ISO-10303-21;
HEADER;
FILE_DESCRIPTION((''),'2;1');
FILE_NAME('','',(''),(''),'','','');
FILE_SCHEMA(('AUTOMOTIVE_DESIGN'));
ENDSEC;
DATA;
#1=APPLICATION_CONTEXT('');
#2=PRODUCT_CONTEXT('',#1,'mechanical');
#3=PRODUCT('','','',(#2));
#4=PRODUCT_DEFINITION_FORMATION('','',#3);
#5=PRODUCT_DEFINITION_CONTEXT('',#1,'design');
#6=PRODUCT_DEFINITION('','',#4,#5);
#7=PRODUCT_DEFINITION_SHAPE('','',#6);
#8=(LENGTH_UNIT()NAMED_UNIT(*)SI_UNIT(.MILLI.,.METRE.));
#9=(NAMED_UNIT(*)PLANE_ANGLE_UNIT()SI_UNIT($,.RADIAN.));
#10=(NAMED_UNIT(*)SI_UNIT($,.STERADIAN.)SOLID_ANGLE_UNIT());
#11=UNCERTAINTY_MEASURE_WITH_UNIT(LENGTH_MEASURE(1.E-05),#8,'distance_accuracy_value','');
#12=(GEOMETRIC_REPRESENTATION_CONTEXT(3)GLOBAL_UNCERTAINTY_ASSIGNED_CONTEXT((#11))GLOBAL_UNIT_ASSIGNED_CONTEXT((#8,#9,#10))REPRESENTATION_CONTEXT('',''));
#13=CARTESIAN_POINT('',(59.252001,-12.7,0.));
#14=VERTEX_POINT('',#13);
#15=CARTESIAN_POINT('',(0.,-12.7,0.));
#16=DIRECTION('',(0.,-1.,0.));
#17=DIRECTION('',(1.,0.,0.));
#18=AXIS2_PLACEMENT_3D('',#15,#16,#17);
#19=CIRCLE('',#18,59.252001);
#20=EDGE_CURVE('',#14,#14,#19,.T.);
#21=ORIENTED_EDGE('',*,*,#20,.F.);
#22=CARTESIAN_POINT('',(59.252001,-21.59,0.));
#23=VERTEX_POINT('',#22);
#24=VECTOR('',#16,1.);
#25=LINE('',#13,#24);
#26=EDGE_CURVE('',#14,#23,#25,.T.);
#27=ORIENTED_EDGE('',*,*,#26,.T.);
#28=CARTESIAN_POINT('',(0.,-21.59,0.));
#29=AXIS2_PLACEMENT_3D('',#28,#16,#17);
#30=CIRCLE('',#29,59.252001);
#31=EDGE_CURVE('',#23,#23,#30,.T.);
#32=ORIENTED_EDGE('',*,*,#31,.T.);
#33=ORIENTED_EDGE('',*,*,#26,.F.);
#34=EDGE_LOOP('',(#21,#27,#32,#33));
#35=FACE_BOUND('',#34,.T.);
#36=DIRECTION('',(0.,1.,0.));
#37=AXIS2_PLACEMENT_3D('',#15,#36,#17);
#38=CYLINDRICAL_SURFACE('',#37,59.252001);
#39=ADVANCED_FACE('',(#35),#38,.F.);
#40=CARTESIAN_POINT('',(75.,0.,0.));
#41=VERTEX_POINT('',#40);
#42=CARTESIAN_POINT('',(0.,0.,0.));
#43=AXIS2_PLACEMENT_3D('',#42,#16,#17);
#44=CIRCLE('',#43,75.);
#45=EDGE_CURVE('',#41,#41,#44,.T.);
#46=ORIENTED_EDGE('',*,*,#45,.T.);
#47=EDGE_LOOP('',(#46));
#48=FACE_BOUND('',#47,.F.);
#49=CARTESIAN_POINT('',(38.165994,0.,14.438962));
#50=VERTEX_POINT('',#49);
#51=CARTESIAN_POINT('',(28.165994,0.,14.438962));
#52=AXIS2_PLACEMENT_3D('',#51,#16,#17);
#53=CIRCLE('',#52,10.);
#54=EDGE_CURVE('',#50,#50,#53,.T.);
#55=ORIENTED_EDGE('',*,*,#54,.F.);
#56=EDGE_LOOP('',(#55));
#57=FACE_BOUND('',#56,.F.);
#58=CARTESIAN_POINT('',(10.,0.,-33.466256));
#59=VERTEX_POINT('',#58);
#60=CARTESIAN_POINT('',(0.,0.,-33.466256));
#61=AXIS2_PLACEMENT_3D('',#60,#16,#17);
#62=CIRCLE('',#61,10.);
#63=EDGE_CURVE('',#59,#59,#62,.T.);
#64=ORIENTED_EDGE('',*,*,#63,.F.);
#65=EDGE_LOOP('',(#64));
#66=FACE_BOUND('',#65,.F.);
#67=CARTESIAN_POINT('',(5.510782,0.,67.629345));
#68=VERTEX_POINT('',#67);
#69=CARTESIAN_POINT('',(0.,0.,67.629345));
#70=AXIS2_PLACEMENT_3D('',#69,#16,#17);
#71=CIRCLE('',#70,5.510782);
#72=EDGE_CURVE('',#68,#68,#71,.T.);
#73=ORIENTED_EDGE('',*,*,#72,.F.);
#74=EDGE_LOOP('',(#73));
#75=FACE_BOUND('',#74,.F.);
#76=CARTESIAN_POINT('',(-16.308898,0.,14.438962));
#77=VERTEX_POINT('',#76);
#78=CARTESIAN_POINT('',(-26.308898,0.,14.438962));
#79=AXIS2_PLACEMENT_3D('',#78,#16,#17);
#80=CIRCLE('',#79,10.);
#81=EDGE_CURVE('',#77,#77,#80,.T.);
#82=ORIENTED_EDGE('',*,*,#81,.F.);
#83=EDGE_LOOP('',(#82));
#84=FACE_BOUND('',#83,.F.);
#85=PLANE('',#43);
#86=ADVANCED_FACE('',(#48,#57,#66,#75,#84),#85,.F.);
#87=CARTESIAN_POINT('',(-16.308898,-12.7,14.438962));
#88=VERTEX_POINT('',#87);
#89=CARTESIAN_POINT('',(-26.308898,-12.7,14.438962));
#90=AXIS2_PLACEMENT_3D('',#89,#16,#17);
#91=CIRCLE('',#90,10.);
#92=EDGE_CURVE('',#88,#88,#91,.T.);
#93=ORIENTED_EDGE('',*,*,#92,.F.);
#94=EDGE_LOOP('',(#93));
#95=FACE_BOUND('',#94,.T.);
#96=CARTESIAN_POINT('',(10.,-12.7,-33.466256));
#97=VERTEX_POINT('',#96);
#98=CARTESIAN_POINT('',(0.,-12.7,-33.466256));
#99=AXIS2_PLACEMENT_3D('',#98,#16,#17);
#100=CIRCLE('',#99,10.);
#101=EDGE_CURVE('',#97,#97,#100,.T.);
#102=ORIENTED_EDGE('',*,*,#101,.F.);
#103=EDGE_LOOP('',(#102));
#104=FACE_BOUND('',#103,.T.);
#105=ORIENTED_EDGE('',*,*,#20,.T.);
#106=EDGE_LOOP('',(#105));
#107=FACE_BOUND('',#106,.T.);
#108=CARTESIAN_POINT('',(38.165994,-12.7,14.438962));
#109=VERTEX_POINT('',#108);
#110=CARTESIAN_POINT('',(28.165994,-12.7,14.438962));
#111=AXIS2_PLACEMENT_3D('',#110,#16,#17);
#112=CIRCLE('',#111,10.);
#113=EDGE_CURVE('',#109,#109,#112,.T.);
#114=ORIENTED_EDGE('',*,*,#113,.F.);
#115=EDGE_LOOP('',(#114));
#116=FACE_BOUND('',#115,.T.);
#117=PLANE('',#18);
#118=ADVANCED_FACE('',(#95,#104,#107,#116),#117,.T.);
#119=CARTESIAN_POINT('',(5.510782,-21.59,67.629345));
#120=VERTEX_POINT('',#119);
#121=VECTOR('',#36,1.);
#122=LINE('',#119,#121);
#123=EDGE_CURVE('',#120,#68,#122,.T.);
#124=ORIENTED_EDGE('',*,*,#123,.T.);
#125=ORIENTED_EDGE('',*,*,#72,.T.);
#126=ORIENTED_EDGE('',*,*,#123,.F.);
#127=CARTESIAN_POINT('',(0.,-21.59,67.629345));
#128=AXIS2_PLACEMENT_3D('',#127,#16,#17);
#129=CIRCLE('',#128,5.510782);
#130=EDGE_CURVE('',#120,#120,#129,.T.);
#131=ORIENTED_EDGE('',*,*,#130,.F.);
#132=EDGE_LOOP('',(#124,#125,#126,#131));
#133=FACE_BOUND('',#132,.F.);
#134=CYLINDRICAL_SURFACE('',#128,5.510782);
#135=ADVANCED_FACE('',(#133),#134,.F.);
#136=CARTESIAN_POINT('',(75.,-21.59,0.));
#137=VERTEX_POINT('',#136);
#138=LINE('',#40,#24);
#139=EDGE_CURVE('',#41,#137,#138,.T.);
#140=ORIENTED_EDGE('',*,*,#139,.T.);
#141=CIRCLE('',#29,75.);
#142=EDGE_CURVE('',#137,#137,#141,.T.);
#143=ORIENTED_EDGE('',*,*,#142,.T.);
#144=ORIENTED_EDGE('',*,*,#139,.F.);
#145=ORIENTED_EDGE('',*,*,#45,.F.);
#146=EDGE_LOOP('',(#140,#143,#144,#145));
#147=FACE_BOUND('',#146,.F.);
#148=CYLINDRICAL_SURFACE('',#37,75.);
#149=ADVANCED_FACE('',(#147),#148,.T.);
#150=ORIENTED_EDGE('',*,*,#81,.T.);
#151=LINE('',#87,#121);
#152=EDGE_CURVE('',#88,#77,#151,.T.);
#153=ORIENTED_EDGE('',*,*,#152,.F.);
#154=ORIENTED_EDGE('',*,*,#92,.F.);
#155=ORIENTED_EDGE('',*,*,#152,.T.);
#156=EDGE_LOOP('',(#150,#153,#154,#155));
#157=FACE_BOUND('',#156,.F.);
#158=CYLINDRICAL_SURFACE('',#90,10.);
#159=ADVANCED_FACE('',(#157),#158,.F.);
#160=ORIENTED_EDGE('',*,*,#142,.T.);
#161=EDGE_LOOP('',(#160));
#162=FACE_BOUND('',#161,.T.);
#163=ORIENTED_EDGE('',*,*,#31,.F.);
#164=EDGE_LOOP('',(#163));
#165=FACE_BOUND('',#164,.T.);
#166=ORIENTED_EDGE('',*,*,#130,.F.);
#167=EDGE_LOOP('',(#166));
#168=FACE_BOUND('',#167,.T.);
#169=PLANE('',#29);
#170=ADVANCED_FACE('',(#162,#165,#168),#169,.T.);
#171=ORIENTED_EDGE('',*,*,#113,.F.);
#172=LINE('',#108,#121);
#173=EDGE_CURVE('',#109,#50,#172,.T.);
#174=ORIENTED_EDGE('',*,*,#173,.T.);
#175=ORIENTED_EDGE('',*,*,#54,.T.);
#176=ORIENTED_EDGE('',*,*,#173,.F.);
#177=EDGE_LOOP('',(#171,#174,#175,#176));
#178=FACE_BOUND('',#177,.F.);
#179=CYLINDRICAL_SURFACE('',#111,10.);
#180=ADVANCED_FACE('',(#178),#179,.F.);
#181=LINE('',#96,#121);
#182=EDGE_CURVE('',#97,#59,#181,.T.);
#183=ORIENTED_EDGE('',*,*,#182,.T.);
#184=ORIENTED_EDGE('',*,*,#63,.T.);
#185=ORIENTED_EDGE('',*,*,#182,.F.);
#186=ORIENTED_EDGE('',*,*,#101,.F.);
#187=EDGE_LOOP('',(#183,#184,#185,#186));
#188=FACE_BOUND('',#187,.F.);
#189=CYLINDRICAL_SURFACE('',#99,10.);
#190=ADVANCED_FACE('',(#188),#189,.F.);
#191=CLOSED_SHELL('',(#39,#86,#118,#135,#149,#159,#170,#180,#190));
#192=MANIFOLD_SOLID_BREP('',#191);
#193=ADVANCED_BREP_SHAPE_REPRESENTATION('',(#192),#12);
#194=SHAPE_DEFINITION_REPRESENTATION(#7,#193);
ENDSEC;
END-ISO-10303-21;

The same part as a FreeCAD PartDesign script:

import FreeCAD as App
import Part
import Sketcher
from FreeCAD import Vector
Q = App.Units.Quantity

doc = App.newDocument("Part")
body = doc.addObject("PartDesign::Body", "Body")

# Sketch on XZ plane
sketch1 = body.newObject("Sketcher::SketchObject", "Sketch")
sketch1.AttachmentSupport = (doc.getObject("XZ_Plane"), [""])
sketch1.MapMode = "FlatFace"
sketch1.addGeometry(Part.Circle(Vector(0, 0, 0), Vector(0, 0, 1), 75), False)
sketch1.addConstraint(Sketcher.Constraint("Coincident", 0, 3, -1, 1))
sketch1.addConstraint(Sketcher.Constraint("Diameter", 0, 150.0))
pad1 = body.newObject("PartDesign::Pad", "Pad")
pad1.Profile = sketch1
pad1.Length = Q("0.5 in")

# Sketch on XZ plane
sketch2 = body.newObject("Sketcher::SketchObject", "Sketch001")
sketch2.AttachmentSupport = (doc.getObject("XZ_Plane"), [""])
sketch2.MapMode = "FlatFace"
sketch2.AttachmentOffset = App.Placement(Vector(0, 0, 0.5 * 25.4), App.Rotation())
sketch2.addGeometry(Part.Circle(Vector(0, 0, 0), Vector(0, 0, 1), 75), False)
sketch2.addGeometry(Part.Circle(Vector(0, 0, 0), Vector(0, 0, 1), 59.252001), False)
sketch2.addConstraint(Sketcher.Constraint("Coincident", 0, 3, -1, 1))
sketch2.addConstraint(Sketcher.Constraint("Coincident", 1, 3, -1, 1))
sketch2.addConstraint(Sketcher.Constraint("Diameter", 0, 150.0))
sketch2.addConstraint(Sketcher.Constraint("Diameter", 1, 118.504002))
pad2 = body.newObject("PartDesign::Pad", "Pad001")
pad2.Profile = sketch2
pad2.Length = Q("0.35 in")

# Sketch on XZ plane
sketch3 = body.newObject("Sketcher::SketchObject", "Sketch002")
sketch3.AttachmentSupport = (doc.getObject("XZ_Plane"), [""])
sketch3.MapMode = "FlatFace"
sketch3.AttachmentOffset = App.Placement(Vector(0, 0, 0.5 * 25.4), App.Rotation())
sketch3.addGeometry(Part.Circle(Vector(-26.308898, 14.438962, 0), Vector(0, 0, 1), 10), False)
sketch3.addGeometry(Part.Circle(Vector(28.165994, 14.438962, 0), Vector(0, 0, 1), 10), False)
sketch3.addGeometry(Part.Circle(Vector(0, -33.466256, 0), Vector(0, 0, 1), 10), False)
sketch3.addConstraint(Sketcher.Constraint("Equal", 0, 1))
sketch3.addConstraint(Sketcher.Constraint("Equal", 1, 2))
sketch3.addConstraint(Sketcher.Constraint("PointOnObject", 2, 3, -2))
sketch3.addConstraint(Sketcher.Constraint("Horizontal", 0, 3, 1, 3))
sketch3.addConstraint(Sketcher.Constraint("Diameter", 0, 20.0))
sketch3.addConstraint(Sketcher.Constraint("DistanceX", 0, 3, 1, 3, 54.474892))
sketch3.addConstraint(Sketcher.Constraint("DistanceY", 2, 3, 0, 3, 47.905218))
sketch3.addConstraint(Sketcher.Constraint("DistanceX", 0, 3, -1, 1, 26.308898))
sketch3.addConstraint(Sketcher.Constraint("DistanceY", -1, 1, 0, 3, 14.438962))
pocket1 = body.newObject("PartDesign::Pocket", "Pocket")
pocket1.Profile = sketch3
pocket1.Length = Q("1 in")

# Sketch on XZ plane
sketch4 = body.newObject("Sketcher::SketchObject", "Sketch003")
sketch4.AttachmentSupport = (doc.getObject("XZ_Plane"), [""])
sketch4.MapMode = "FlatFace"
sketch4.AttachmentOffset = App.Placement(Vector(0, 0, 0.85 * 25.4), App.Rotation())
sketch4.addGeometry(Part.Circle(Vector(0, 67.629345, 0), Vector(0, 0, 1), 5.510782), False)
sketch4.addConstraint(Sketcher.Constraint("PointOnObject", 0, 3, -2))
sketch4.addConstraint(Sketcher.Constraint("Diameter", 0, 11.021564))
sketch4.addConstraint(Sketcher.Constraint("DistanceY", -1, 1, 0, 3, 67.629345))
pocket2 = body.newObject("PartDesign::Pocket", "Pocket001")
pocket2.Profile = sketch4
pocket2.Length = Q("1 in")

doc.recompute()
